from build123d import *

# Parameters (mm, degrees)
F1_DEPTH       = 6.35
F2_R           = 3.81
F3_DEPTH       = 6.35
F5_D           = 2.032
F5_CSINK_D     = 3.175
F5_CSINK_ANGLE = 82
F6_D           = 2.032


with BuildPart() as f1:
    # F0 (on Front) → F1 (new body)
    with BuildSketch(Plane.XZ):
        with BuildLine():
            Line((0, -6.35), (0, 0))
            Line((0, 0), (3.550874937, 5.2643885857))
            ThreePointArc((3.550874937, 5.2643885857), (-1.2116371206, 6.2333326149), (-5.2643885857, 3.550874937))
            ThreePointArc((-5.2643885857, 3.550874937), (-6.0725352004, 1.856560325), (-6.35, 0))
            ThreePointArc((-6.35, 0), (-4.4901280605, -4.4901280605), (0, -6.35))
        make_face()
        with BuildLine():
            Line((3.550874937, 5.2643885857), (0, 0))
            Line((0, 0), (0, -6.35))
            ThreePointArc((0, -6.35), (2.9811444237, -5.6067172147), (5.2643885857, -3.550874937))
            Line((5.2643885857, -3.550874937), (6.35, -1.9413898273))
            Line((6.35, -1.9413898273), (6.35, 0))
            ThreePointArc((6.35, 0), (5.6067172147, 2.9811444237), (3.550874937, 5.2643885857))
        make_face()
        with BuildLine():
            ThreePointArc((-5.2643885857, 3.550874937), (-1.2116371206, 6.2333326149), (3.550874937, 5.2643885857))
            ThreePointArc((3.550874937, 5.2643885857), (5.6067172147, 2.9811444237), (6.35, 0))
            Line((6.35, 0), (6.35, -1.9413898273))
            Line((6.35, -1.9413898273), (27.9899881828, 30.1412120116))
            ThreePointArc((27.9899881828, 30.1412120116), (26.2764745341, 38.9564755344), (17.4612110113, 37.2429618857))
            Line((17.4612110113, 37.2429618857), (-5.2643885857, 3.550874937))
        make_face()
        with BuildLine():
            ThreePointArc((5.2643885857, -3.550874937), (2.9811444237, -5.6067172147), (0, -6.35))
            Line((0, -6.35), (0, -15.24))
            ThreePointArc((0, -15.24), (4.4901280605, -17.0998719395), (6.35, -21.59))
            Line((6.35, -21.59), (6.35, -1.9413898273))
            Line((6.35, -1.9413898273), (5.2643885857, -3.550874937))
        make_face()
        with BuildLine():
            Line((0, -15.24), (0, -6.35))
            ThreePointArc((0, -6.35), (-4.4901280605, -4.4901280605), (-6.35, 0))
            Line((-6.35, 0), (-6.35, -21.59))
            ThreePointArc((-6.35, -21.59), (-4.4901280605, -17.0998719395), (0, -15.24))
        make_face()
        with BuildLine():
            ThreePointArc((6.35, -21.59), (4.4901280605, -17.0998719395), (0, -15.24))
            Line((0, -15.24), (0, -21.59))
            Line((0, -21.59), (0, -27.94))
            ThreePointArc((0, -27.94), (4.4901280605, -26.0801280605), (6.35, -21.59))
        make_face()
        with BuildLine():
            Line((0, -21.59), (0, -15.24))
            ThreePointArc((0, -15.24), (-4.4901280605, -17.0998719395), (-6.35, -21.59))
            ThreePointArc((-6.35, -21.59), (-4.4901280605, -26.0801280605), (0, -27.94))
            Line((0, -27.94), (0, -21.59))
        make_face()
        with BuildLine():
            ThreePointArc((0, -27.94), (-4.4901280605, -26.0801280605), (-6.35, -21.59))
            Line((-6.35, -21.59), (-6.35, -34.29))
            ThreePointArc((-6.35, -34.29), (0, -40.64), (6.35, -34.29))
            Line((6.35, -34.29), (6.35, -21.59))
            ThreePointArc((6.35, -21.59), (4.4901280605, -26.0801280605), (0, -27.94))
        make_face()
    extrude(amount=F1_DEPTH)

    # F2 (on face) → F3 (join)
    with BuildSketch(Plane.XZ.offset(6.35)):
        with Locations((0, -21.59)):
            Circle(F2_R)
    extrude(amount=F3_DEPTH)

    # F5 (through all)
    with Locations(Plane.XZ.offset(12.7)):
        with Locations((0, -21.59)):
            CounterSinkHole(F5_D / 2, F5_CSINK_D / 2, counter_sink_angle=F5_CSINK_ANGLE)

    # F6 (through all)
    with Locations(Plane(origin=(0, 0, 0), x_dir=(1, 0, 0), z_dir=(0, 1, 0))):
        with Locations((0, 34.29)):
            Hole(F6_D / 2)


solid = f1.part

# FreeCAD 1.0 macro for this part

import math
import FreeCAD as App
import Part
import Sketcher
from FreeCAD import Vector
Q = App.Units.Quantity

doc = App.newDocument("Part")
body = doc.addObject("PartDesign::Body", "Body")

sketch1 = body.newObject("Sketcher::SketchObject", "Sketch")
sketch1.AttachmentSupport = (doc.getObject("XZ_Plane"), [""])
sketch1.MapMode = "FlatFace"
sketch1.addGeometry(Part.ArcOfCircle(Part.Circle(Vector(0, 0, 0), Vector(0, 0, 1), 6.3), math.radians(146), math.radians(180)), False)
sketch1.addGeometry(Part.LineSegment(Vector(-6.3, 0, 0), Vector(-6.3, -34.3, 0)), False)
sketch1.addGeometry(Part.ArcOfCircle(Part.Circle(Vector(0, -34.3, 0), Vector(0, 0, 1), 6.3), math.radians(180), math.radians(360)), False)
sketch1.addGeometry(Part.LineSegment(Vector(6.3, -34.3, 0), Vector(6.3, -1.9, 0)), False)
sketch1.addGeometry(Part.LineSegment(Vector(6.3, -1.9, 0), Vector(28, 30.1, 0)), False)
sketch1.addGeometry(Part.ArcOfCircle(Part.Circle(Vector(22.7, 33.7, 0), Vector(0, 0, 1), 6.3), math.radians(-34), math.radians(146)), False)
sketch1.addGeometry(Part.LineSegment(Vector(17.5, 37.2, 0), Vector(-5.3, 3.6, 0)), False)
sketch1.addConstraint(Sketcher.Constraint("Tangent", 0, 2, 1, 1))
sketch1.addConstraint(Sketcher.Constraint("Tangent", 1, 2, 2, 1))
sketch1.addConstraint(Sketcher.Constraint("Tangent", 2, 2, 3, 1))
sketch1.addConstraint(Sketcher.Constraint("Coincident", 3, 2, 4, 1))
sketch1.addConstraint(Sketcher.Constraint("Tangent", 4, 2, 5, 1))
sketch1.addConstraint(Sketcher.Constraint("Tangent", 5, 2, 6, 1))
sketch1.addConstraint(Sketcher.Constraint("Tangent", 6, 2, 0, 1))
sketch1.addConstraint(Sketcher.Constraint("Vertical", 1))
sketch1.addConstraint(Sketcher.Constraint("Vertical", 3))
sketch1.addConstraint(Sketcher.Constraint("Coincident", 0, 3, -1, 1))
sketch1.addConstraint(Sketcher.Constraint("Equal", 0, 2))
sketch1.addConstraint(Sketcher.Constraint("Equal", 2, 5))
sketch1.addConstraint(Sketcher.Constraint("Parallel", 4, 6))
sketch1.addConstraint(Sketcher.Constraint("Radius", 0, Q("0.25 in")))
sketch1.addConstraint(Sketcher.Constraint("Angle", 4, Q("56 deg")))
sketch1.addConstraint(Sketcher.Constraint("Distance", 6, Q("1.6 in")))
sketch1.addConstraint(Sketcher.Constraint("DistanceY", 1, 2, 1, 1, Q("1.35 in")))
pad1 = body.newObject("PartDesign::Pad", "Pad")
pad1.Profile = sketch1
pad1.Length = Q("0.25 in")

sketch2 = body.newObject("Sketcher::SketchObject", "Sketch001")
sketch2.AttachmentSupport = (doc.getObject("XZ_Plane"), [""])
sketch2.MapMode = "FlatFace"
sketch2.AttachmentOffset = App.Placement(Vector(0, 0, 0.25 * 25.4), App.Rotation())
sketch2.addGeometry(Part.Circle(Vector(0, -21.6, 0), Vector(0, 0, 1), 3.8), False)
sketch2.addConstraint(Sketcher.Constraint("PointOnObject", 0, 3, -2))
sketch2.addConstraint(Sketcher.Constraint("Diameter", 0, Q("0.3 in")))
sketch2.addConstraint(Sketcher.Constraint("DistanceY", 0, 3, -1, 1, Q("0.85 in")))
pad2 = body.newObject("PartDesign::Pad", "Pad001")
pad2.Profile = sketch2
pad2.Length = Q("0.25 in")

sketch3 = body.newObject("Sketcher::SketchObject", "Sketch002")
sketch3.AttachmentSupport = (doc.getObject("XZ_Plane"), [""])
sketch3.MapMode = "FlatFace"
sketch3.AttachmentOffset = App.Placement(Vector(0, 0, 0.5 * 25.4), App.Rotation())
sketch3.addGeometry(Part.Circle(Vector(0, -21.6, 0), Vector(0, 0, 1), 1), False)
sketch3.addConstraint(Sketcher.Constraint("PointOnObject", 0, 3, -2))
sketch3.addConstraint(Sketcher.Constraint("Diameter", 0, Q("0.08 in")))
sketch3.addConstraint(Sketcher.Constraint("DistanceY", 0, 3, -1, 1, Q("0.85 in")))
doc.recompute()
hole = body.newObject("PartDesign::Hole", "Hole")
hole.Profile = sketch3
hole.ThreadType = "None"
hole.Diameter = Q("0.08 in")
hole.DepthType = "ThroughAll"
hole.HoleCutType = "Countersink"
hole.HoleCutDiameter = Q("0.125 in")
hole.HoleCutCountersinkAngle = 82

sketch4 = body.newObject("Sketcher::SketchObject", "Sketch003")
sketch4.AttachmentSupport = (doc.getObject("XZ_Plane"), [""])
sketch4.MapMode = "FlatFace"
sketch4.addGeometry(Part.Circle(Vector(0, -34.3, 0), Vector(0, 0, 1), 1), False)
sketch4.addConstraint(Sketcher.Constraint("PointOnObject", 0, 3, -2))
sketch4.addConstraint(Sketcher.Constraint("Diameter", 0, Q("0.08 in")))
sketch4.addConstraint(Sketcher.Constraint("DistanceY", 0, 3, -1, 1, Q("1.35 in")))
doc.recompute()
hole2 = body.newObject("PartDesign::Hole", "Hole001")
hole2.Profile = sketch4
hole2.ThreadType = "None"
hole2.Diameter = Q("0.08 in")
hole2.DepthType = "ThroughAll"
hole2.Reversed = True

doc.recompute()
